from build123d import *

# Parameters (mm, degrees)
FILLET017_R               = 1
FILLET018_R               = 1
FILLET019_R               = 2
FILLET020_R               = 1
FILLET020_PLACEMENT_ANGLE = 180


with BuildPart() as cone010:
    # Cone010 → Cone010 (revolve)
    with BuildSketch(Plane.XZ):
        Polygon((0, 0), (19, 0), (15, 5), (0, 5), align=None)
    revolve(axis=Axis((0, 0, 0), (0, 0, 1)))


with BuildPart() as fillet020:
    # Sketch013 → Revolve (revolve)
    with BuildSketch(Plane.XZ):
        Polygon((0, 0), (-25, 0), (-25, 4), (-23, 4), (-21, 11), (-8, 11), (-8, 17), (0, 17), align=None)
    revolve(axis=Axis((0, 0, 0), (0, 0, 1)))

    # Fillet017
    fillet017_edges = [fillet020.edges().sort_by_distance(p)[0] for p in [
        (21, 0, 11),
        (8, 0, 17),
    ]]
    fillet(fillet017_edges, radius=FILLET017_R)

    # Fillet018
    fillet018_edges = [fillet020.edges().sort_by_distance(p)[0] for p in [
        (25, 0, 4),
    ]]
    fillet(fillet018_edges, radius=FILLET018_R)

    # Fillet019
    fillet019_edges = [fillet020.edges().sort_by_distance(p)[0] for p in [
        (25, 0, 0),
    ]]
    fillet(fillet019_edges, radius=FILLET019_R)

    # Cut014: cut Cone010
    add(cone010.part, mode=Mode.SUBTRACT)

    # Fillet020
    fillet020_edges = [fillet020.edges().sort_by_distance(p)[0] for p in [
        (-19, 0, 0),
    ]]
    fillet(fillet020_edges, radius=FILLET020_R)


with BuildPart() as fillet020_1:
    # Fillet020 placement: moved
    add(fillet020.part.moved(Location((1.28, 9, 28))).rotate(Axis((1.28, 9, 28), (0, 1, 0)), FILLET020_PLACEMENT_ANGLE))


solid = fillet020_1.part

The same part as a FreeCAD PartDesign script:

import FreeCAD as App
import Part
import Sketcher


def edges_at(feature, points):
    """Names of the edges that pass closest to the given points."""
    edges = feature.Shape.Edges
    near = lambda p: min(range(len(edges)), key=lambda i: edges[i].distToShape(Part.Vertex(*p))[0])
    return sorted({f"Edge{near(p) + 1}" for p in points})


def add_polygon(sketch, points):
    """Adds a closed chain of lines whose ends are joined by coincident constraints."""
    first, n = sketch.GeometryCount, len(points)
    for a, b in zip(points, points[1:] + points[:1]):
        sketch.addGeometry(Part.LineSegment(App.Vector(*a, 0), App.Vector(*b, 0)), False)
    for i in range(n):
        sketch.addConstraint(Sketcher.Constraint("Coincident", first + i, 2, first + (i + 1) % n, 1))

doc = App.newDocument("Part")
body = doc.addObject("PartDesign::Body", "Body")

sketch1 = body.newObject("Sketcher::SketchObject", "Sketch")
sketch1.AttachmentSupport = (doc.getObject("XZ_Plane"), [""])
sketch1.MapMode = "FlatFace"
add_polygon(sketch1, [(0, 0), (19, 0), (15, 5), (0, 5)])
sketch1.addConstraint([
    Sketcher.Constraint("Horizontal", 0),
    Sketcher.Constraint("Horizontal", 2),
    Sketcher.Constraint("Vertical", 3),
    Sketcher.Constraint("Coincident", 3, 2, -1, 1),
    Sketcher.Constraint("DistanceX", 0, 1, 0, 2, 19.0),
    Sketcher.Constraint("DistanceX", 2, 2, 2, 1, 15.0),
    Sketcher.Constraint("DistanceY", 3, 2, 3, 1, 5.0),
])
revolution = body.newObject("PartDesign::Revolution", "Revolution")
revolution.Profile = sketch1
revolution.ReferenceAxis = (sketch1, ["V_Axis"])
revolution.Angle = 360
body2 = doc.addObject("PartDesign::Body", "Body001")

sketch2 = body2.newObject("Sketcher::SketchObject", "Sketch001")
sketch2.AttachmentSupport = (doc.getObject("XZ_Plane001"), [""])
sketch2.MapMode = "FlatFace"
add_polygon(sketch2, [(-25, 0), (0, 0), (0, 17), (-8, 17), (-8, 11), (-21, 11), (-23, 4), (-25, 4)])
sketch2.addConstraint([
    Sketcher.Constraint("Horizontal", 0),
    Sketcher.Constraint("Vertical", 1),
    Sketcher.Constraint("Horizontal", 2),
    Sketcher.Constraint("Vertical", 3),
    Sketcher.Constraint("Horizontal", 4),
    Sketcher.Constraint("Horizontal", 6),
    Sketcher.Constraint("Vertical", 7),
    Sketcher.Constraint("Coincident", 0, 2, -1, 1),
    Sketcher.Constraint("DistanceX", 0, 1, 0, 2, 25.0),
    Sketcher.Constraint("DistanceX", 2, 2, 2, 1, 8.0),
    Sketcher.Constraint("DistanceX", 4, 2, 4, 1, 13.0),
    Sketcher.Constraint("DistanceX", 6, 2, 6, 1, 2.0),
    Sketcher.Constraint("DistanceY", 1, 1, 1, 2, 17.0),
    Sketcher.Constraint("DistanceY", 3, 2, 3, 1, 6.0),
    Sketcher.Constraint("DistanceY", 7, 2, 7, 1, 4.0),
])
revolution2 = body2.newObject("PartDesign::Revolution", "Revolution001")
revolution2.Profile = sketch2
revolution2.ReferenceAxis = (sketch2, ["V_Axis"])
revolution2.Angle = 360
doc.recompute()

fillet = body2.newObject("PartDesign::Fillet", "Fillet")
fillet.Base = (revolution2, edges_at(revolution2, [(21, 0, 11), (8, 0, 17)]))
fillet.Radius = 1
doc.recompute()

fillet2 = body2.newObject("PartDesign::Fillet", "Fillet001")
fillet2.Base = (fillet, edges_at(fillet, [(25, 0, 4)]))
fillet2.Radius = 1
doc.recompute()

fillet3 = body2.newObject("PartDesign::Fillet", "Fillet002")
fillet3.Base = (fillet2, edges_at(fillet2, [(25, 0, 0)]))
fillet3.Radius = 2
doc.recompute()

boolean = body2.newObject("PartDesign::Boolean", "Boolean")
boolean.Type = "Cut"
boolean.addObjects([body])
doc.recompute()

fillet4 = body2.newObject("PartDesign::Fillet", "Fillet003")
fillet4.Base = (boolean, edges_at(boolean, [(-19, 0, 0)]))
fillet4.Radius = 1
body3 = doc.addObject("PartDesign::Body", "Body002")
doc.recompute()

body2.Placement = App.Placement(App.Vector(1.28, 9, 28), App.Rotation(App.Vector(0, 1, 0), 180))
boolean2 = body3.newObject("PartDesign::Boolean", "Boolean001")
boolean2.Type = "Fuse"
boolean2.addObjects([body2])

doc.recompute()
